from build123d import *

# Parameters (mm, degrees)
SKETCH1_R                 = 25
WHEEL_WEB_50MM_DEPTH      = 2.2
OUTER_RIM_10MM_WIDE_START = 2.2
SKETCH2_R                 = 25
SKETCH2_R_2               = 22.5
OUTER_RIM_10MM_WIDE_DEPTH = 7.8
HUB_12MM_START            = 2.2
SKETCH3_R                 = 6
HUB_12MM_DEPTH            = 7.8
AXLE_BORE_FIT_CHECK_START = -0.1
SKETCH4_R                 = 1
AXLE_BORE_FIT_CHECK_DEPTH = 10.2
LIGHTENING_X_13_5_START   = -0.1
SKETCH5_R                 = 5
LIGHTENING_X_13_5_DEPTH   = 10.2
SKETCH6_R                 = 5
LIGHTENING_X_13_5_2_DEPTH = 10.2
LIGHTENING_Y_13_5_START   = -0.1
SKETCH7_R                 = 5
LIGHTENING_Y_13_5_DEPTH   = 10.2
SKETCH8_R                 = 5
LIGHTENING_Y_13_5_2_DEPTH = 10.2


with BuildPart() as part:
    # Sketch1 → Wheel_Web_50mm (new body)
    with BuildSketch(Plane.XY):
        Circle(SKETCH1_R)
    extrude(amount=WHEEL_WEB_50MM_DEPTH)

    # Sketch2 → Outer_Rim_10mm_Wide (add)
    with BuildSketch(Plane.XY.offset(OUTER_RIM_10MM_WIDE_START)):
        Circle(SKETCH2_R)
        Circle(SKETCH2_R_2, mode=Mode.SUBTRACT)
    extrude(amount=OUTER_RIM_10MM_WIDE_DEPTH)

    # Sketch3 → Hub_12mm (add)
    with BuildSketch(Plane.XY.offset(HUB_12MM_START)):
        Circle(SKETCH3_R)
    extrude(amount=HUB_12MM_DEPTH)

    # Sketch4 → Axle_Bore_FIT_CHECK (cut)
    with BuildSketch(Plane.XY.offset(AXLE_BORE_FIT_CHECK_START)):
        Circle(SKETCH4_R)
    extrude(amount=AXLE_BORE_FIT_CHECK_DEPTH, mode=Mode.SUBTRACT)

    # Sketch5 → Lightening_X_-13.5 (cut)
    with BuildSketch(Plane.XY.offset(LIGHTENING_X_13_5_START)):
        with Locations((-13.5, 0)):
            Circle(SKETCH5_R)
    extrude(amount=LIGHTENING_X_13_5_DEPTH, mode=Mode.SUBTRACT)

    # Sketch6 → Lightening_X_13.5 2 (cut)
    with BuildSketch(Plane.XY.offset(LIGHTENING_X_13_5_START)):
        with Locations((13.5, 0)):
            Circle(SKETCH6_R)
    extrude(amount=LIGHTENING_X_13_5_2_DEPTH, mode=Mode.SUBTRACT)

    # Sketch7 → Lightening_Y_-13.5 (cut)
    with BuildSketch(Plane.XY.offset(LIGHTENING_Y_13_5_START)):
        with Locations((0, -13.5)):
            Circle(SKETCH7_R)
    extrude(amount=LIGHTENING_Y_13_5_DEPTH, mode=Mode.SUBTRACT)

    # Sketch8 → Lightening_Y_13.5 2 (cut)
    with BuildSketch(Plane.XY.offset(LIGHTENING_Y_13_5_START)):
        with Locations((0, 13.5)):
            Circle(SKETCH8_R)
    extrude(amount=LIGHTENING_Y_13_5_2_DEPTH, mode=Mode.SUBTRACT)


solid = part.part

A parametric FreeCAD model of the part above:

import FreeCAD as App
import Part
import Sketcher

doc = App.newDocument("Part")
params = doc.addObject("Spreadsheet::Sheet", "Params")
for row, (alias, value) in enumerate([
    ("sketch1_diameter", "50 mm"),
    ("pad1_length", "2.2 mm"),
    ("sketch2_diameter", "50 mm"),
    ("sketch2_diameter2", "45 mm"),
    ("pad2_length", "7.8 mm"),
    ("sketch3_diameter", "12 mm"),
    ("pad3_length", "7.8 mm"),
    ("sketch4_diameter", "2 mm"),
    ("pocket1_length", "10.2 mm"),
    ("sketch5_diameter", "10 mm"),
    ("pocket2_length", "10.2 mm"),
    ("sketch6_diameter", "10 mm"),
    ("pocket3_length", "10.2 mm"),
    ("sketch7_diameter", "10 mm"),
    ("pocket4_length", "10.2 mm"),
    ("sketch8_diameter", "10 mm"),
    ("pocket5_length", "10.2 mm"),
], start=1):
    params.set(f"A{row}", alias)
    params.set(f"B{row}", "=" + value)
    params.setAlias(f"B{row}", alias)

body = doc.addObject("PartDesign::Body", "Body")

# Sketch on XY plane
sketch1 = doc.addObject("Sketcher::SketchObject", "Sketch")
body.addObject(sketch1)
sketch1.AttachmentSupport = (doc.XY_Plane, [""])
sketch1.MapMode = "FlatFace"
sketch1.addGeometry(Part.Circle(App.Vector(0, 0, 0), App.Vector(0, 0, 1), 25), False)
sketch1.addConstraint([
    Sketcher.Constraint("Coincident", 0, 3, -1, 1),
    Sketcher.Constraint("Diameter", 0, 50.0),
])
sketch1.setExpression("Constraints[1]", "Params.sketch1_diameter")
pad1 = doc.addObject("PartDesign::Pad", "Pad")
body.addObject(pad1)
pad1.Profile = sketch1
pad1.setExpression("Length", "Params.pad1_length")

# Sketch on XY plane
sketch2 = doc.addObject("Sketcher::SketchObject", "Sketch001")
body.addObject(sketch2)
sketch2.AttachmentSupport = (doc.XY_Plane, [""])
sketch2.MapMode = "FlatFace"
sketch2.AttachmentOffset = App.Placement(App.Vector(0, 0, 2.2), App.Rotation())
sketch2.addGeometry([
    Part.Circle(App.Vector(0, 0, 0), App.Vector(0, 0, 1), 25),
    Part.Circle(App.Vector(0, 0, 0), App.Vector(0, 0, 1), 22),
], False)
sketch2.addConstraint([
    Sketcher.Constraint("Coincident", 0, 3, -1, 1),
    Sketcher.Constraint("Coincident", 1, 3, -1, 1),
    Sketcher.Constraint("Diameter", 0, 50.0),
    Sketcher.Constraint("Diameter", 1, 45.0),
])
sketch2.setExpression("Constraints[2]", "Params.sketch2_diameter")
sketch2.setExpression("Constraints[3]", "Params.sketch2_diameter2")
pad2 = doc.addObject("PartDesign::Pad", "Pad001")
body.addObject(pad2)
pad2.Profile = sketch2
pad2.setExpression("Length", "Params.pad2_length")

# Sketch on XY plane
sketch3 = doc.addObject("Sketcher::SketchObject", "Sketch002")
body.addObject(sketch3)
sketch3.AttachmentSupport = (doc.XY_Plane, [""])
sketch3.MapMode = "FlatFace"
sketch3.AttachmentOffset = App.Placement(App.Vector(0, 0, 2.2), App.Rotation())
sketch3.addGeometry(Part.Circle(App.Vector(0, 0, 0), App.Vector(0, 0, 1), 6), False)
sketch3.addConstraint([
    Sketcher.Constraint("Coincident", 0, 3, -1, 1),
    Sketcher.Constraint("Diameter", 0, 12.0),
])
sketch3.setExpression("Constraints[1]", "Params.sketch3_diameter")
pad3 = doc.addObject("PartDesign::Pad", "Pad002")
body.addObject(pad3)
pad3.Profile = sketch3
pad3.setExpression("Length", "Params.pad3_length")

# Sketch on XY plane
sketch4 = doc.addObject("Sketcher::SketchObject", "Sketch003")
body.addObject(sketch4)
sketch4.AttachmentSupport = (doc.XY_Plane, [""])
sketch4.MapMode = "FlatFace"
sketch4.AttachmentOffset = App.Placement(App.Vector(0, 0, -0.1), App.Rotation())
sketch4.addGeometry(Part.Circle(App.Vector(0, 0, 0), App.Vector(0, 0, 1), 1), False)
sketch4.addConstraint([
    Sketcher.Constraint("Coincident", 0, 3, -1, 1),
    Sketcher.Constraint("Diameter", 0, 2.0),
])
sketch4.setExpression("Constraints[1]", "Params.sketch4_diameter")
pocket1 = doc.addObject("PartDesign::Pocket", "Pocket")
body.addObject(pocket1)
pocket1.Profile = sketch4
pocket1.setExpression("Length", "Params.pocket1_length")
pocket1.Reversed = True

# Sketch on XY plane
sketch5 = doc.addObject("Sketcher::SketchObject", "Sketch004")
body.addObject(sketch5)
sketch5.AttachmentSupport = (doc.XY_Plane, [""])
sketch5.MapMode = "FlatFace"
sketch5.AttachmentOffset = App.Placement(App.Vector(0, 0, -0.1), App.Rotation())
sketch5.addGeometry(Part.Circle(App.Vector(-14, 0, 0), App.Vector(0, 0, 1), 5), False)
sketch5.addConstraint([
    Sketcher.Constraint("PointOnObject", 0, 3, -1),
    Sketcher.Constraint("Diameter", 0, 10.0),
    Sketcher.Constraint("DistanceX", 0, 3, -1, 1, 13.5),
])
sketch5.setExpression("Constraints[1]", "Params.sketch5_diameter")
pocket2 = doc.addObject("PartDesign::Pocket", "Pocket001")
body.addObject(pocket2)
pocket2.Profile = sketch5
pocket2.setExpression("Length", "Params.pocket2_length")
pocket2.Reversed = True

# Sketch on XY plane
sketch6 = doc.addObject("Sketcher::SketchObject", "Sketch005")
body.addObject(sketch6)
sketch6.AttachmentSupport = (doc.XY_Plane, [""])
sketch6.MapMode = "FlatFace"
sketch6.AttachmentOffset = App.Placement(App.Vector(0, 0, -0.1), App.Rotation())
sketch6.addGeometry(Part.Circle(App.Vector(14, 0, 0), App.Vector(0, 0, 1), 5), False)
sketch6.addConstraint([
    Sketcher.Constraint("PointOnObject", 0, 3, -1),
    Sketcher.Constraint("Diameter", 0, 10.0),
    Sketcher.Constraint("DistanceX", -1, 1, 0, 3, 13.5),
])
sketch6.setExpression("Constraints[1]", "Params.sketch6_diameter")
pocket3 = doc.addObject("PartDesign::Pocket", "Pocket002")
body.addObject(pocket3)
pocket3.Profile = sketch6
pocket3.setExpression("Length", "Params.pocket3_length")
pocket3.Reversed = True

# Sketch on XY plane
sketch7 = doc.addObject("Sketcher::SketchObject", "Sketch006")
body.addObject(sketch7)
sketch7.AttachmentSupport = (doc.XY_Plane, [""])
sketch7.MapMode = "FlatFace"
sketch7.AttachmentOffset = App.Placement(App.Vector(0, 0, -0.1), App.Rotation())
sketch7.addGeometry(Part.Circle(App.Vector(0, -14, 0), App.Vector(0, 0, 1), 5), False)
sketch7.addConstraint([
    Sketcher.Constraint("PointOnObject", 0, 3, -2),
    Sketcher.Constraint("Diameter", 0, 10.0),
    Sketcher.Constraint("DistanceY", 0, 3, -1, 1, 13.5),
])
sketch7.setExpression("Constraints[1]", "Params.sketch7_diameter")
pocket4 = doc.addObject("PartDesign::Pocket", "Pocket003")
body.addObject(pocket4)
pocket4.Profile = sketch7
pocket4.setExpression("Length", "Params.pocket4_length")
pocket4.Reversed = True

# Sketch on XY plane
sketch8 = doc.addObject("Sketcher::SketchObject", "Sketch007")
body.addObject(sketch8)
sketch8.AttachmentSupport = (doc.XY_Plane, [""])
sketch8.MapMode = "FlatFace"
sketch8.AttachmentOffset = App.Placement(App.Vector(0, 0, -0.1), App.Rotation())
sketch8.addGeometry(Part.Circle(App.Vector(0, 14, 0), App.Vector(0, 0, 1), 5), False)
sketch8.addConstraint([
    Sketcher.Constraint("PointOnObject", 0, 3, -2),
    Sketcher.Constraint("Diameter", 0, 10.0),
    Sketcher.Constraint("DistanceY", -1, 1, 0, 3, 13.5),
])
sketch8.setExpression("Constraints[1]", "Params.sketch8_diameter")
pocket5 = doc.addObject("PartDesign::Pocket", "Pocket004")
body.addObject(pocket5)
pocket5.Profile = sketch8
pocket5.setExpression("Length", "Params.pocket5_length")
pocket5.Reversed = True

doc.recompute()
